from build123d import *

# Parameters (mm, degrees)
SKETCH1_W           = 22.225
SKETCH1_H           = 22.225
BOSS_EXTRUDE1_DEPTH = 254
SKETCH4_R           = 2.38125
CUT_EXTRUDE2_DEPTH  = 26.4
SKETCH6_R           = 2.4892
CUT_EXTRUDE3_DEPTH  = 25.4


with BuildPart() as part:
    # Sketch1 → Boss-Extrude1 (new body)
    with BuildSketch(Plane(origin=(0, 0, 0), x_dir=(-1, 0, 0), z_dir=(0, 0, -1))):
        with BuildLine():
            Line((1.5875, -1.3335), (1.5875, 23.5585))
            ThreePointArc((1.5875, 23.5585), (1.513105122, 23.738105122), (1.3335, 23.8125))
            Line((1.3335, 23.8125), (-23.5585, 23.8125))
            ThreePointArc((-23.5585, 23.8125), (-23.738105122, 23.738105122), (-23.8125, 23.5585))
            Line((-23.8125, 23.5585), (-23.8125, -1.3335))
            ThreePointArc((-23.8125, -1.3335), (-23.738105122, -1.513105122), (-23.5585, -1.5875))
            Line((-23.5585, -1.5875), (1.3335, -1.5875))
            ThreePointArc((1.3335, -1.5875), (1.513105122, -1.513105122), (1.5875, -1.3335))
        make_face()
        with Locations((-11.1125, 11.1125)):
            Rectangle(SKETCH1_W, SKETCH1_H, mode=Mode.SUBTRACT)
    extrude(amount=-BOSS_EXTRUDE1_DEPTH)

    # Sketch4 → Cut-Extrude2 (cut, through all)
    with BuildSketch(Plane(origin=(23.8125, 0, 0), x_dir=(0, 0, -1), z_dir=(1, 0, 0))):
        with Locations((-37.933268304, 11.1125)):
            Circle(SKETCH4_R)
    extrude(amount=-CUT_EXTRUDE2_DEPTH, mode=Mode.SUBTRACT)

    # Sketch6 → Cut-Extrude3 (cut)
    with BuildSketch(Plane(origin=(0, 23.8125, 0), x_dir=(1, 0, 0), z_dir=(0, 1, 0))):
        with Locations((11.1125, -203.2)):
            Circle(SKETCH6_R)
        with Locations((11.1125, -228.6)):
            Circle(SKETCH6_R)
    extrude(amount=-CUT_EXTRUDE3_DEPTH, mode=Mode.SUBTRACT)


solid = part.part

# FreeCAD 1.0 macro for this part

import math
import FreeCAD as App
import Part
import Sketcher
from FreeCAD import Vector
Q = App.Units.Quantity


def add_polygon(sketch, points):
    """Adds a closed chain of lines whose ends are joined by coincident constraints."""
    first, n = sketch.GeometryCount, len(points)
    for a, b in zip(points, points[1:] + points[:1]):
        sketch.addGeometry(Part.LineSegment(App.Vector(*a, 0), App.Vector(*b, 0)), False)
    for i in range(n):
        sketch.addConstraint(Sketcher.Constraint("Coincident", first + i, 2, first + (i + 1) % n, 1))

doc = App.newDocument("Part")
params = doc.addObject("Spreadsheet::Sheet", "Params")
for row, (alias, value) in enumerate([
    ("sketch1_radius", "0.01 in"),
    ("sketch1_width", "0.98 in"),
    ("sketch1_width2", "0.875 in"),
    ("pad1_length", "10 in"),
    ("sketch2_diameter", "0.1875 in"),
    ("sketch3_diameter", "0.196 in"),
    ("pocket2_length", "1 in"),
], start=1):
    params.set(f"A{row}", alias)
    params.set(f"B{row}", "=" + value)
    params.setAlias(f"B{row}", alias)

body = doc.addObject("PartDesign::Body", "Body")

# Sketch on XY plane
sketch1 = body.newObject("Sketcher::SketchObject", "Sketch")
sketch1.AttachmentSupport = (doc.getObject("XY_Plane"), [""])
sketch1.MapMode = "FlatFace"
sketch1.addGeometry(Part.LineSegment(Vector(-1.59, -1.33, 0), Vector(-1.59, 23.56, 0)), False)  # 0
sketch1.addGeometry(Part.ArcOfCircle(Part.Circle(Vector(-1.33, 23.56, 0), Vector(0, 0, 1), 0.25), math.radians(90), math.radians(180)), False)  # 1
sketch1.addGeometry(Part.LineSegment(Vector(-1.33, 23.81, 0), Vector(23.56, 23.81, 0)), False)  # 2
sketch1.addGeometry(Part.ArcOfCircle(Part.Circle(Vector(23.56, 23.56, 0), Vector(0, 0, 1), 0.25), math.radians(0), math.radians(90)), False)  # 3
sketch1.addGeometry(Part.LineSegment(Vector(23.81, 23.56, 0), Vector(23.81, -1.33, 0)), False)  # 4
sketch1.addGeometry(Part.ArcOfCircle(Part.Circle(Vector(23.56, -1.33, 0), Vector(0, 0, 1), 0.25), math.radians(-90), math.radians(0)), False)  # 5
sketch1.addGeometry(Part.LineSegment(Vector(23.56, -1.59, 0), Vector(-1.33, -1.59, 0)), False)  # 6
sketch1.addGeometry(Part.ArcOfCircle(Part.Circle(Vector(-1.33, -1.33, 0), Vector(0, 0, 1), 0.25), math.radians(-180), math.radians(-90)), False)  # 7
add_polygon(sketch1, [(0, 0), (22.23, 0), (22.23, 22.23), (0, 22.23)])  # lines 8-11
sketch1.addConstraint(Sketcher.Constraint("Tangent", 0, 2, 1, 2))
sketch1.addConstraint(Sketcher.Constraint("Tangent", 1, 1, 2, 1))
sketch1.addConstraint(Sketcher.Constraint("Tangent", 2, 2, 3, 2))
sketch1.addConstraint(Sketcher.Constraint("Tangent", 3, 1, 4, 1))
sketch1.addConstraint(Sketcher.Constraint("Tangent", 4, 2, 5, 2))
sketch1.addConstraint(Sketcher.Constraint("Tangent", 5, 1, 6, 1))
sketch1.addConstraint(Sketcher.Constraint("Tangent", 6, 2, 7, 2))
sketch1.addConstraint(Sketcher.Constraint("Tangent", 7, 1, 0, 1))
sketch1.addConstraint(Sketcher.Constraint("Vertical", 0))
sketch1.addConstraint(Sketcher.Constraint("Horizontal", 2))
sketch1.addConstraint(Sketcher.Constraint("Vertical", 4))
sketch1.addConstraint(Sketcher.Constraint("Horizontal", 6))
sketch1.addConstraint(Sketcher.Constraint("Horizontal", 8))
sketch1.addConstraint(Sketcher.Constraint("Vertical", 9))
sketch1.addConstraint(Sketcher.Constraint("Horizontal", 10))
sketch1.addConstraint(Sketcher.Constraint("Vertical", 11))
sketch1.addConstraint(Sketcher.Constraint("Coincident", 11, 2, -1, 1))
sketch1.addConstraint(Sketcher.Constraint("Equal", 1, 3))
sketch1.addConstraint(Sketcher.Constraint("Equal", 3, 5))
sketch1.addConstraint(Sketcher.Constraint("Equal", 5, 7))
sketch1.addConstraint(Sketcher.Constraint("Equal", 6, 0))
sketch1.addConstraint(Sketcher.Constraint("Equal", 10, 9))
sketch1.addConstraint(Sketcher.Constraint("Radius", 1, Q("0.01 in")))
sketch1.addConstraint(Sketcher.Constraint("DistanceX", 2, 1, 2, 2, Q("0.98 in")))
sketch1.addConstraint(Sketcher.Constraint("DistanceX", 8, 1, 8, 2, Q("0.875 in")))
sketch1.addConstraint(Sketcher.Constraint("DistanceX", 0, 2, -1, 1, Q("0.0625 in")))
sketch1.addConstraint(Sketcher.Constraint("DistanceY", -1, 1, 1, 1, Q("0.9375 in")))
sketch1.setExpression("Constraints[26]", "Params.sketch1_radius")
sketch1.setExpression("Constraints[27]", "Params.sketch1_width")
sketch1.setExpression("Constraints[28]", "Params.sketch1_width2")
pad1 = body.newObject("PartDesign::Pad", "Pad")
pad1.Profile = sketch1
pad1.setExpression("Length", "Params.pad1_length")

# Sketch on YZ plane
sketch2 = body.newObject("Sketcher::SketchObject", "Sketch001")
sketch2.AttachmentSupport = (doc.getObject("YZ_Plane"), [""])
sketch2.MapMode = "FlatFace"
sketch2.AttachmentOffset = App.Placement(Vector(0, 0, 0.9375 * 25.4), App.Rotation())
sketch2.addGeometry(Part.Circle(Vector(11.1, 37.9, 0), Vector(0, 0, 1), 2.4), False)
sketch2.addConstraint(Sketcher.Constraint("Diameter", 0, Q("0.1875 in")))
sketch2.addConstraint(Sketcher.Constraint("DistanceX", -1, 1, 0, 3, Q("0.4375 in")))
sketch2.addConstraint(Sketcher.Constraint("DistanceY", -1, 1, 0, 3, 37.933268))
sketch2.setExpression("Constraints[0]", "Params.sketch2_diameter")
pocket1 = body.newObject("PartDesign::Pocket", "Pocket")
pocket1.Profile = sketch2
pocket1.Type = "ThroughAll"

# Sketch on XZ plane
sketch3 = body.newObject("Sketcher::SketchObject", "Sketch002")
sketch3.AttachmentSupport = (doc.getObject("XZ_Plane"), [""])
sketch3.MapMode = "FlatFace"
sketch3.AttachmentOffset = App.Placement(Vector(0, 0, -0.9375 * 25.4), App.Rotation())
sketch3.addGeometry(Part.Circle(Vector(11.1, 203.2, 0), Vector(0, 0, 1), 2.5), False)
sketch3.addGeometry(Part.Circle(Vector(11.1, 228.6, 0), Vector(0, 0, 1), 2.5), False)
sketch3.addConstraint(Sketcher.Constraint("Equal", 0, 1))
sketch3.addConstraint(Sketcher.Constraint("Vertical", 0, 3, 1, 3))
sketch3.addConstraint(Sketcher.Constraint("Diameter", 0, Q("0.196 in")))
sketch3.addConstraint(Sketcher.Constraint("DistanceY", -1, 1, 0, 3, Q("8 in")))
sketch3.addConstraint(Sketcher.Constraint("DistanceY", -1, 1, 1, 3, Q("9 in")))
sketch3.addConstraint(Sketcher.Constraint("DistanceX", -1, 1, 0, 3, Q("0.4375 in")))
sketch3.setExpression("Constraints[2]", "Params.sketch3_diameter")
pocket2 = body.newObject("PartDesign::Pocket", "Pocket001")
pocket2.Profile = sketch3
pocket2.setExpression("Length", "Params.pocket2_length")
pocket2.Reversed = True

doc.recompute()
